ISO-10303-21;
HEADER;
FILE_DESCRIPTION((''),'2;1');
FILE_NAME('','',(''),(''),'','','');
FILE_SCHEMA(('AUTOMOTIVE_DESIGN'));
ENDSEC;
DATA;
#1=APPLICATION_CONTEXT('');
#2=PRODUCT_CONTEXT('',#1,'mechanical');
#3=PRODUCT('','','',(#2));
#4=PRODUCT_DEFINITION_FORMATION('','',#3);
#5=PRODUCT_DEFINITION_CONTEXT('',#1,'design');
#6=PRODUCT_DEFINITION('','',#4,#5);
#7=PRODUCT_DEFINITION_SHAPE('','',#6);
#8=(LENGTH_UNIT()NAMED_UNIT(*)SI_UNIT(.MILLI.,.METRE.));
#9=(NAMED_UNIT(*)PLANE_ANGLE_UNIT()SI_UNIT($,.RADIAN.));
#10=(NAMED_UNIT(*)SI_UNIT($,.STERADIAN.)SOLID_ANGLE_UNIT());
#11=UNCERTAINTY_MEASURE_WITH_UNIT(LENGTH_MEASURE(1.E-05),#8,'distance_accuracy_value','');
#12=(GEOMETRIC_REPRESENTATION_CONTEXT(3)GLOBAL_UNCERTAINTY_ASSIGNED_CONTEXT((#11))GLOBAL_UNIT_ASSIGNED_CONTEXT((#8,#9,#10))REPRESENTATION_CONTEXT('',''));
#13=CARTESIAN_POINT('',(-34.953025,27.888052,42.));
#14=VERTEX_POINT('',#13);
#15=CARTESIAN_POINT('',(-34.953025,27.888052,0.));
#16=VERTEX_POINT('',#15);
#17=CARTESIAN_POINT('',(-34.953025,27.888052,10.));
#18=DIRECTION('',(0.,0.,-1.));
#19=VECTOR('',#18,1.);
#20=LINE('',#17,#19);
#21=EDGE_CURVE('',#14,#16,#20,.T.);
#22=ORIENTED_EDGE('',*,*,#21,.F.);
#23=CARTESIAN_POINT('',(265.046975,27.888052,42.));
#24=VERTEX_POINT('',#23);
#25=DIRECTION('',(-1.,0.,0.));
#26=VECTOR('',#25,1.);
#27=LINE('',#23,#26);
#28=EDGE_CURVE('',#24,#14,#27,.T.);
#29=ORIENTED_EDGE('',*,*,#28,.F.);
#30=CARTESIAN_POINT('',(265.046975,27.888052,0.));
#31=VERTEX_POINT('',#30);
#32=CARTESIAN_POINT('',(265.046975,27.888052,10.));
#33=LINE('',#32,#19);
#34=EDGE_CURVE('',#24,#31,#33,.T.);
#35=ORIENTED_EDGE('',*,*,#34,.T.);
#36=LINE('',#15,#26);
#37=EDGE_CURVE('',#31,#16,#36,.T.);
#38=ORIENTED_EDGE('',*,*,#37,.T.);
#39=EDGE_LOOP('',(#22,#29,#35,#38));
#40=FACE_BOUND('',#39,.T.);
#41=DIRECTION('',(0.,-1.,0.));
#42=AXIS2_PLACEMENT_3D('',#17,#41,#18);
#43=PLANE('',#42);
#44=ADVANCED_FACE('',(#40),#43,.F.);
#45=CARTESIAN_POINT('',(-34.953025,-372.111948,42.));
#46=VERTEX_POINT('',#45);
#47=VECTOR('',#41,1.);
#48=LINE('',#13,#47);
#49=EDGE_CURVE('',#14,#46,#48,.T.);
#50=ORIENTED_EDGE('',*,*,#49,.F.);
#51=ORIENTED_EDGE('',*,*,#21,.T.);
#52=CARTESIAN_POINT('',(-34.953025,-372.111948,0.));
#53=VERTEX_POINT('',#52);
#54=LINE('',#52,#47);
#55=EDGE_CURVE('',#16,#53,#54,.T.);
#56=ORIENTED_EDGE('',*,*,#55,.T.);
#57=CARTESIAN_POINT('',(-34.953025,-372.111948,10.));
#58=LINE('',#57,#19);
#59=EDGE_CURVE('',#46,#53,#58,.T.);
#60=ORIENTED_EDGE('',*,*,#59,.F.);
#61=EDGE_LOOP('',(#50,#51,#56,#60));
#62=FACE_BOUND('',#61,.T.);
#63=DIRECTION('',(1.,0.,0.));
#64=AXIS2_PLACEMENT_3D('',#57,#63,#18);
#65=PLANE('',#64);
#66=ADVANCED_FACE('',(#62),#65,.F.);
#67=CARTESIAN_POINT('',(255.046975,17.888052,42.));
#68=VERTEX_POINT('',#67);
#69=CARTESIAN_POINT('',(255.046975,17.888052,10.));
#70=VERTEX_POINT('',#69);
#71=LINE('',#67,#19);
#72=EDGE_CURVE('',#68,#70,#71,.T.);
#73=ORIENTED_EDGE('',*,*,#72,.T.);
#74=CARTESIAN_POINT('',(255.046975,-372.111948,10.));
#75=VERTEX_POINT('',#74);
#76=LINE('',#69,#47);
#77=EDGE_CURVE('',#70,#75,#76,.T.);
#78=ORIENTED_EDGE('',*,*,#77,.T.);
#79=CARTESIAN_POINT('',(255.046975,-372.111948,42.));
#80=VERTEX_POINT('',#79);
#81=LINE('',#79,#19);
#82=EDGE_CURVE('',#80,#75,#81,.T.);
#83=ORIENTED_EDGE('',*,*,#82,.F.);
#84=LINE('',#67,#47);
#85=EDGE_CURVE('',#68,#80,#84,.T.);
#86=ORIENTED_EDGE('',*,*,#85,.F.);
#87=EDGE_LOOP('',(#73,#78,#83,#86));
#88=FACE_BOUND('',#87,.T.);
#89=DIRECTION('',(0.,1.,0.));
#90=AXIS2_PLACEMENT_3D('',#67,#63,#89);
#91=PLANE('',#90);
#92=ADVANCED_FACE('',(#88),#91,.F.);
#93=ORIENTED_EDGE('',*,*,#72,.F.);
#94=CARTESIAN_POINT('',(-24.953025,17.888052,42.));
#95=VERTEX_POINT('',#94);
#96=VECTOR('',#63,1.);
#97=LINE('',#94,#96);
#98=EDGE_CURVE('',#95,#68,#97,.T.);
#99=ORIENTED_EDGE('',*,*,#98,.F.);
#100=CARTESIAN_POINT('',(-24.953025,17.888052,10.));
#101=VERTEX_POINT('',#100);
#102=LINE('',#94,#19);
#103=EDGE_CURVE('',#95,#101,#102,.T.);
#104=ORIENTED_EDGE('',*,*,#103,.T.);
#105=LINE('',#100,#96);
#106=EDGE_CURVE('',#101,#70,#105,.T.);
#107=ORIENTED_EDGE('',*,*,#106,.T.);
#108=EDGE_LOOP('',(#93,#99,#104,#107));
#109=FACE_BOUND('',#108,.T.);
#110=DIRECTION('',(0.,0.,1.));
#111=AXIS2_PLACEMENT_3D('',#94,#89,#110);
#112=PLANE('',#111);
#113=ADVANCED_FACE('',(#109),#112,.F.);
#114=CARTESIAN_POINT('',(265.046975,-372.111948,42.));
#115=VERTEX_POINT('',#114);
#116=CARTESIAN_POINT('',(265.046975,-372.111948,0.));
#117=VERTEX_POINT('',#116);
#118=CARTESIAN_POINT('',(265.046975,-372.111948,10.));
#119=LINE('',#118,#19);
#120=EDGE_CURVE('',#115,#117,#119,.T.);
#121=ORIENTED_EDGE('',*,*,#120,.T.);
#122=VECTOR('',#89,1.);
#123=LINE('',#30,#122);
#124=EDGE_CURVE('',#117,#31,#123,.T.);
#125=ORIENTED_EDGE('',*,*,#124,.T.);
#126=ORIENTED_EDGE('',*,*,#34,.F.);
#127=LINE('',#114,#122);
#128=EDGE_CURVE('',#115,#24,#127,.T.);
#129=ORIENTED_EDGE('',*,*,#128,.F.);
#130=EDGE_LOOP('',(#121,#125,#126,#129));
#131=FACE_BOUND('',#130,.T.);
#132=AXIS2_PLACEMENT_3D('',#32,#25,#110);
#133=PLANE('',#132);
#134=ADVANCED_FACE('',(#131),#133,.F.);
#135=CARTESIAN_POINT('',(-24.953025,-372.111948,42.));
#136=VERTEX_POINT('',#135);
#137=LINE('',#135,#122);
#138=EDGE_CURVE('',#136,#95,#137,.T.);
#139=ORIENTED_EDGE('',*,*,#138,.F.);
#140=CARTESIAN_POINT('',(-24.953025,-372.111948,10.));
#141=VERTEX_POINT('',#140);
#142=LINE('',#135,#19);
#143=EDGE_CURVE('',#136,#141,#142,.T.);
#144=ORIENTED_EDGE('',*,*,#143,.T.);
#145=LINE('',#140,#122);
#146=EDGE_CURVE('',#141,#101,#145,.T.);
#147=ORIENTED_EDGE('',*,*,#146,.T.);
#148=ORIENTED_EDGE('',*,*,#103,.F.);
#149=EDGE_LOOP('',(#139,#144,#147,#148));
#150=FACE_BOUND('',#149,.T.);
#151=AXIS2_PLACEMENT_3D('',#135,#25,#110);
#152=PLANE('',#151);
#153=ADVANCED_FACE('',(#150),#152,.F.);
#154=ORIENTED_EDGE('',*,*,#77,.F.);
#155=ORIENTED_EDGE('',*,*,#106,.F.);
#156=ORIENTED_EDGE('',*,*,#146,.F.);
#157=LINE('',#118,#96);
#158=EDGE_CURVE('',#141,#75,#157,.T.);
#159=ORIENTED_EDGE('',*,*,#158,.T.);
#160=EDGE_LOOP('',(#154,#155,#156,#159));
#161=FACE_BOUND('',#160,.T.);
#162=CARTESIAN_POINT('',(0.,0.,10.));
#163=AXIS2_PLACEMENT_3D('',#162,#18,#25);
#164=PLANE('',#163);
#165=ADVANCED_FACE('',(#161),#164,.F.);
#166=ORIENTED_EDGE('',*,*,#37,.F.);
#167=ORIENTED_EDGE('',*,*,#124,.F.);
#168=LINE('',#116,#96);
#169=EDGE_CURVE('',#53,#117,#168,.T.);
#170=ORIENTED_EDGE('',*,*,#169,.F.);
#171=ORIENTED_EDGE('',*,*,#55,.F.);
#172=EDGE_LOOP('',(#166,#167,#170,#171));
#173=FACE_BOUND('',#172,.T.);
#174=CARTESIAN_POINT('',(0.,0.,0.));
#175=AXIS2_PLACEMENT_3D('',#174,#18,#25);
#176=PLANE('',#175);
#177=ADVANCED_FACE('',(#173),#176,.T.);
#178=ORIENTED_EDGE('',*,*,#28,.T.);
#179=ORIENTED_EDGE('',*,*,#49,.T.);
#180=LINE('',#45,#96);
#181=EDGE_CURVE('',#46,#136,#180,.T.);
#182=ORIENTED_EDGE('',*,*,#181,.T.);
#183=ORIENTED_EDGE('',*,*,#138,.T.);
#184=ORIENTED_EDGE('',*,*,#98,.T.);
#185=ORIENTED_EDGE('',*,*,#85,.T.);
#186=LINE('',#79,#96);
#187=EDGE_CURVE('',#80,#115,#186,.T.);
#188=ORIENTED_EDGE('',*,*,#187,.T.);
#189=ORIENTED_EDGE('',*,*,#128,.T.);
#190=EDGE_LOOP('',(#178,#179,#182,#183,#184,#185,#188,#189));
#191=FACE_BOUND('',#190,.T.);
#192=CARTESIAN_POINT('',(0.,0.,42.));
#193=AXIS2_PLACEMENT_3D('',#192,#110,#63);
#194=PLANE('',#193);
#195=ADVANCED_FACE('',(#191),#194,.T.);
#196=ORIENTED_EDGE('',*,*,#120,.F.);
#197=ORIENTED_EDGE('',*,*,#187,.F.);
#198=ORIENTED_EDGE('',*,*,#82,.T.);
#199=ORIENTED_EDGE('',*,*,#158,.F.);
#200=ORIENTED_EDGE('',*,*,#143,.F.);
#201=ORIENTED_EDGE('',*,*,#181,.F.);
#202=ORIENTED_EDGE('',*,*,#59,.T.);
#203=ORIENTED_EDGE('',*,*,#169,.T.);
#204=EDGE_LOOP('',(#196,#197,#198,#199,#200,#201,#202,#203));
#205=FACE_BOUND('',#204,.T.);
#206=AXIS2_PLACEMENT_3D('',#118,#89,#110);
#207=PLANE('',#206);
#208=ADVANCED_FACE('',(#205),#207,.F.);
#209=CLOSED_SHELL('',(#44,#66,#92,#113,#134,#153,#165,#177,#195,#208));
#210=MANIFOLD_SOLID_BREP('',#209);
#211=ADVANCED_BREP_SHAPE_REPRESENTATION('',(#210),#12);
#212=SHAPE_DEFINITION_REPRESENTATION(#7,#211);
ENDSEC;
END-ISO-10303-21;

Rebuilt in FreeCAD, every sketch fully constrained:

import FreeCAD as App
import Part
import Sketcher


def add_polygon(sketch, points):
    """Adds a closed chain of lines whose ends are joined by coincident constraints."""
    first, n = sketch.GeometryCount, len(points)
    for a, b in zip(points, points[1:] + points[:1]):
        sketch.addGeometry(Part.LineSegment(App.Vector(*a, 0), App.Vector(*b, 0)), False)
    for i in range(n):
        sketch.addConstraint(Sketcher.Constraint("Coincident", first + i, 2, first + (i + 1) % n, 1))

doc = App.newDocument("Part")
params = doc.addObject("Spreadsheet::Sheet", "Params")
for row, (alias, value) in enumerate([
    ("sketch1_width", "300 mm"),
    ("sketch1_height", "400 mm"),
    ("pad1_length", "10 mm"),
    ("sketch2_width", "300 mm"),
    ("sketch2_width2", "10 mm"),
    ("sketch2_height", "400 mm"),
    ("sketch2_height2", "390 mm"),
    ("pad2_length", "32 mm"),
], start=1):
    params.set(f"A{row}", alias)
    params.set(f"B{row}", "=" + value)
    params.setAlias(f"B{row}", alias)

body = doc.addObject("PartDesign::Body", "Body")

sketch1 = body.newObject("Sketcher::SketchObject", "Sketch")
sketch1.AttachmentSupport = (doc.getObject("XY_Plane"), [""])
sketch1.MapMode = "FlatFace"
add_polygon(sketch1, [(-35, 28), (-35, -372), (265, -372), (265, 28)])
sketch1.addConstraint([
    Sketcher.Constraint("Vertical", 0),
    Sketcher.Constraint("Horizontal", 1),
    Sketcher.Constraint("Vertical", 2),
    Sketcher.Constraint("Horizontal", 3),
    Sketcher.Constraint("DistanceX", 1, 1, 1, 2, 300.0),
    Sketcher.Constraint("DistanceY", 0, 2, 0, 1, 400.0),
    Sketcher.Constraint("DistanceY", 0, 2, -1, 1, 372.111948),
    Sketcher.Constraint("DistanceX", 0, 2, -1, 1, 34.953025),
])
sketch1.setExpression("Constraints[8]", "Params.sketch1_width")
sketch1.setExpression("Constraints[9]", "Params.sketch1_height")
pad1 = body.newObject("PartDesign::Pad", "Pad")
pad1.Profile = sketch1
pad1.setExpression("Length", "Params.pad1_length")

sketch2 = body.newObject("Sketcher::SketchObject", "Sketch001")
sketch2.AttachmentSupport = (doc.getObject("XY_Plane"), [""])
sketch2.MapMode = "FlatFace"
sketch2.AttachmentOffset = App.Placement(App.Vector(0, 0, 10), App.Rotation())
add_polygon(sketch2, [(265, -372), (265, 28), (-35, 28), (-35, -372), (-25, -372), (-25, 18), (255, 18), (255, -372)])
sketch2.addConstraint([
    Sketcher.Constraint("Vertical", 0),
    Sketcher.Constraint("Horizontal", 1),
    Sketcher.Constraint("Vertical", 2),
    Sketcher.Constraint("Horizontal", 3),
    Sketcher.Constraint("Vertical", 4),
    Sketcher.Constraint("Horizontal", 5),
    Sketcher.Constraint("Vertical", 6),
    Sketcher.Constraint("Horizontal", 7),
    Sketcher.Constraint("Horizontal", 3, 2, 6, 2),
    Sketcher.Constraint("Equal", 3, 7),
    Sketcher.Constraint("DistanceX", 1, 2, 1, 1, 300.0),
    Sketcher.Constraint("DistanceX", 3, 1, 3, 2, 10.0),
    Sketcher.Constraint("DistanceY", 0, 1, 0, 2, 400.0),
    Sketcher.Constraint("DistanceY", 4, 1, 4, 2, 390.0),
    Sketcher.Constraint("DistanceY", -1, 1, 0, 2, 27.888052),
    Sketcher.Constraint("DistanceX", -1, 1, 0, 2, 265.046975),
])
sketch2.setExpression("Constraints[18]", "Params.sketch2_width")
sketch2.setExpression("Constraints[19]", "Params.sketch2_width2")
sketch2.setExpression("Constraints[20]", "Params.sketch2_height")
sketch2.setExpression("Constraints[21]", "Params.sketch2_height2")
pad2 = body.newObject("PartDesign::Pad", "Pad001")
pad2.Profile = sketch2
pad2.setExpression("Length", "Params.pad2_length")

doc.recompute()
